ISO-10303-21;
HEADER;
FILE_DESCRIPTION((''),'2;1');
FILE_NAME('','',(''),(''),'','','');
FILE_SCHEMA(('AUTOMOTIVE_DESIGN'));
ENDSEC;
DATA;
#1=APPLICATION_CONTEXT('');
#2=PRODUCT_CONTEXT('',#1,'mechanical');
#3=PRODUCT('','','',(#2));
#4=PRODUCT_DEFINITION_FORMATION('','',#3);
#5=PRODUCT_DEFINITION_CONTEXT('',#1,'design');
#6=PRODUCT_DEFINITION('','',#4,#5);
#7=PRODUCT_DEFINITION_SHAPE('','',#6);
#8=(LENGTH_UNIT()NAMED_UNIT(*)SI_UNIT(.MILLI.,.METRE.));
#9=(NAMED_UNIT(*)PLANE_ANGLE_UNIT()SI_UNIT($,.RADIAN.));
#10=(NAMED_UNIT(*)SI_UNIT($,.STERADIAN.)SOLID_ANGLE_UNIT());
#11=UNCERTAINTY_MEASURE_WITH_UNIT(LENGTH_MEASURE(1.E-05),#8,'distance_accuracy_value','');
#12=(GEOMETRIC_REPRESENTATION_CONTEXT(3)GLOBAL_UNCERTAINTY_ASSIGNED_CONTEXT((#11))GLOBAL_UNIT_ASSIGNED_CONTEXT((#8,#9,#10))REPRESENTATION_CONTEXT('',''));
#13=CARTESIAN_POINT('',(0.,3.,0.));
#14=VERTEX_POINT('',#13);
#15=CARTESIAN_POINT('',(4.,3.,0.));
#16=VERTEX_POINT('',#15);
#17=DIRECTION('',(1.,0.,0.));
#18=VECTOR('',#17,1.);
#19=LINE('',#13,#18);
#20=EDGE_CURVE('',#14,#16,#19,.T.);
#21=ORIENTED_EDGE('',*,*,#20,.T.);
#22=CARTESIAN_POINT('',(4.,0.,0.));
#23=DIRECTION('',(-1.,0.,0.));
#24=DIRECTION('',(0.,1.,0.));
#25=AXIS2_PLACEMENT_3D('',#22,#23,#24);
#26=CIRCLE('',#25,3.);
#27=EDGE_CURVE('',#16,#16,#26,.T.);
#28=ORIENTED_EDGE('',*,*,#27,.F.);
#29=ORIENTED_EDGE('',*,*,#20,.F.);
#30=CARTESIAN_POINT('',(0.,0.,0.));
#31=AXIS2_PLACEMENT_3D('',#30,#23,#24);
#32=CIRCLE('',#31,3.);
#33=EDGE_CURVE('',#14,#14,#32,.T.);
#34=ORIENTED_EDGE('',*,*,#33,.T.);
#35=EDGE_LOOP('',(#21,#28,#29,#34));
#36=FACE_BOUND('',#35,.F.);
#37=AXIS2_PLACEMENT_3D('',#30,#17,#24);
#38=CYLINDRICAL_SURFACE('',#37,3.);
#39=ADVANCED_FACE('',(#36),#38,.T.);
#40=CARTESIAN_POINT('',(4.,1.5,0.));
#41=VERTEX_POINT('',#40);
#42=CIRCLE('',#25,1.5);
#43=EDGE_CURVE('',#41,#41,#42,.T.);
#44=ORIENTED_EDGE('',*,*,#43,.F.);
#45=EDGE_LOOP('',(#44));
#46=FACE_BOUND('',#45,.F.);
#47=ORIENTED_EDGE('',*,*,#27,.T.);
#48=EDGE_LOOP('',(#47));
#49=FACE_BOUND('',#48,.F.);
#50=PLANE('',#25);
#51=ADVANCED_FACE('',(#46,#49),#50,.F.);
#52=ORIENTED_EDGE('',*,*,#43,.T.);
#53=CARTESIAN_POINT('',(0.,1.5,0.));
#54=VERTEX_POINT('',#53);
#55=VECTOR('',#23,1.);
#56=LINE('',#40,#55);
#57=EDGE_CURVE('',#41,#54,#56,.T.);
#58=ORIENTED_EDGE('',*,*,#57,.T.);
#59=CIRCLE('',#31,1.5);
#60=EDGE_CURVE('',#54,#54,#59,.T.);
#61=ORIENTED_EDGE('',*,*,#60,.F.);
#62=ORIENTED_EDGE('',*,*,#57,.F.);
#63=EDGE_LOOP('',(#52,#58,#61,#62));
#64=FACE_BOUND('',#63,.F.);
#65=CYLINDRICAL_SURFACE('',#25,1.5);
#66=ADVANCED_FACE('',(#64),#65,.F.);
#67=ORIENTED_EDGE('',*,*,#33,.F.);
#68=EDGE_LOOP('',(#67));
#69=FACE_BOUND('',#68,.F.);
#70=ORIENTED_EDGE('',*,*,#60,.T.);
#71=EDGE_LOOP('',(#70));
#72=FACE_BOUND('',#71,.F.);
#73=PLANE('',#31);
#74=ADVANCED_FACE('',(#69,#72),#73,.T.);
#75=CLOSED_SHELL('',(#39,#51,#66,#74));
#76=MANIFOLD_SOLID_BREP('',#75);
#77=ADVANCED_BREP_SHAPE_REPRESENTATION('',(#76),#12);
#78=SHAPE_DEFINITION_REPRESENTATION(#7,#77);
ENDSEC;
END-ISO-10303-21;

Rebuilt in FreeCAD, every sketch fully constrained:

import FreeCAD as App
import Part
import Sketcher
from FreeCAD import Vector
Q = App.Units.Quantity


def add_polygon(sketch, points):
    """Adds a closed chain of lines whose ends are joined by coincident constraints."""
    first, n = sketch.GeometryCount, len(points)
    for a, b in zip(points, points[1:] + points[:1]):
        sketch.addGeometry(Part.LineSegment(App.Vector(*a, 0), App.Vector(*b, 0)), False)
    for i in range(n):
        sketch.addConstraint(Sketcher.Constraint("Coincident", first + i, 2, first + (i + 1) % n, 1))

doc = App.newDocument("Part")
body = doc.addObject("PartDesign::Body", "Body")

# Sketch on XY plane
sketch1 = body.newObject("Sketcher::SketchObject", "Sketch")
sketch1.AttachmentSupport = (doc.getObject("XY_Plane"), [""])
sketch1.MapMode = "FlatFace"
add_polygon(sketch1, [(0, 3), (0, 1.5), (4, 1.5), (4, 3)])  # lines 0-3
sketch1.addConstraint(Sketcher.Constraint("Vertical", 0))
sketch1.addConstraint(Sketcher.Constraint("Horizontal", 1))
sketch1.addConstraint(Sketcher.Constraint("Vertical", 2))
sketch1.addConstraint(Sketcher.Constraint("Horizontal", 3))
sketch1.addConstraint(Sketcher.Constraint("PointOnObject", 0, 2, -2))
sketch1.addConstraint(Sketcher.Constraint("DistanceX", 1, 1, 1, 2, Q("4 mm")))
sketch1.addConstraint(Sketcher.Constraint("DistanceY", 0, 2, 0, 1, Q("1.5 mm")))
sketch1.addConstraint(Sketcher.Constraint("DistanceY", -1, 1, 2, 2, Q("3 mm")))
revolution = body.newObject("PartDesign::Revolution", "Revolution")
revolution.Profile = sketch1
revolution.ReferenceAxis = (sketch1, ["H_Axis"])
revolution.Angle = 360

doc.recompute()
